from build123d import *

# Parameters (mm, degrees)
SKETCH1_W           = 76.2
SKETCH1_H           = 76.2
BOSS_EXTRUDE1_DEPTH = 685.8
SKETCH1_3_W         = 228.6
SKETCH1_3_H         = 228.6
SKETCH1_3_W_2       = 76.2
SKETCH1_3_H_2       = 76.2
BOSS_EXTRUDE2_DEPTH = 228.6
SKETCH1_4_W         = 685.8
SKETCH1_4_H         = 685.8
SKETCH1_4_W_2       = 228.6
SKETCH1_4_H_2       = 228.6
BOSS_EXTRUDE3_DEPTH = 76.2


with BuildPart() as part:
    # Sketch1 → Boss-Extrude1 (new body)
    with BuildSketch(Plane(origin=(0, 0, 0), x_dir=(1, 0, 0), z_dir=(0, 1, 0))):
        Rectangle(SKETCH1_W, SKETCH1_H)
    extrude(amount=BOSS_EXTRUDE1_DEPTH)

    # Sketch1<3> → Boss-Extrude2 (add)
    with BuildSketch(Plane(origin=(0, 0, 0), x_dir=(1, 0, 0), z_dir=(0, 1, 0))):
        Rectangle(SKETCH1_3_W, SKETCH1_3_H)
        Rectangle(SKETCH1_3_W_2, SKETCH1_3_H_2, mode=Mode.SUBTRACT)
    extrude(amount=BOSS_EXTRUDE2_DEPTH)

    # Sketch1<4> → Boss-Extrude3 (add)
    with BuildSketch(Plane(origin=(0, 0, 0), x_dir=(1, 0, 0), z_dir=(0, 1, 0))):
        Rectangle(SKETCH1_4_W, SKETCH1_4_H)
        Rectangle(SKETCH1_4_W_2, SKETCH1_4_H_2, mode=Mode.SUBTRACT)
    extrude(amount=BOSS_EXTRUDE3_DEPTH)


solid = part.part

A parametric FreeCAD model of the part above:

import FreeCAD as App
import Part
import Sketcher

V = App.Vector
Q = App.Units.Quantity

doc = App.newDocument("Part")
body = doc.addObject("PartDesign::Body", "Body")

# Sketch on XZ plane
sketch1 = body.newObject("Sketcher::SketchObject", "Sketch")
sketch1.AttachmentSupport = (doc.getObject("XZ_Plane"), [""])
sketch1.MapMode = "FlatFace"
sketch1.addGeometry(Part.LineSegment(V(-38, -38, 0), V(-38, 38, 0)), False)
sketch1.addGeometry(Part.LineSegment(V(-38, 38, 0), V(38, 38, 0)), False)
sketch1.addGeometry(Part.LineSegment(V(38, 38, 0), V(38, -38, 0)), False)
sketch1.addGeometry(Part.LineSegment(V(38, -38, 0), V(-38, -38, 0)), False)
sketch1.addConstraint(Sketcher.Constraint("Coincident", 0, 2, 1, 1))
sketch1.addConstraint(Sketcher.Constraint("Coincident", 1, 2, 2, 1))
sketch1.addConstraint(Sketcher.Constraint("Coincident", 2, 2, 3, 1))
sketch1.addConstraint(Sketcher.Constraint("Coincident", 3, 2, 0, 1))
sketch1.addConstraint(Sketcher.Constraint("Vertical", 0))
sketch1.addConstraint(Sketcher.Constraint("Horizontal", 1))
sketch1.addConstraint(Sketcher.Constraint("Vertical", 2))
sketch1.addConstraint(Sketcher.Constraint("Horizontal", 3))
sketch1.addConstraint(Sketcher.Constraint("Symmetric", 0, 2, 2, 2, -1, 1))
sketch1.addConstraint(Sketcher.Constraint("Equal", 3, 0))
sketch1.addConstraint(Sketcher.Constraint("DistanceX", 1, 1, 1, 2, Q("3 in")))
pad1 = body.newObject("PartDesign::Pad", "Pad")
pad1.Profile = sketch1
pad1.Length = Q("27 in")
pad1.Reversed = True

# Sketch on XZ plane
sketch2 = body.newObject("Sketcher::SketchObject", "Sketch001")
sketch2.AttachmentSupport = (doc.getObject("XZ_Plane"), [""])
sketch2.MapMode = "FlatFace"
sketch2.addGeometry(Part.LineSegment(V(-114, -114, 0), V(-114, 114, 0)), False)
sketch2.addGeometry(Part.LineSegment(V(-114, 114, 0), V(114, 114, 0)), False)
sketch2.addGeometry(Part.LineSegment(V(114, 114, 0), V(114, -114, 0)), False)
sketch2.addGeometry(Part.LineSegment(V(114, -114, 0), V(-114, -114, 0)), False)
sketch2.addGeometry(Part.LineSegment(V(38, 38, 0), V(-38, 38, 0)), False)
sketch2.addGeometry(Part.LineSegment(V(-38, 38, 0), V(-38, -38, 0)), False)
sketch2.addGeometry(Part.LineSegment(V(-38, -38, 0), V(38, -38, 0)), False)
sketch2.addGeometry(Part.LineSegment(V(38, -38, 0), V(38, 38, 0)), False)
sketch2.addConstraint(Sketcher.Constraint("Coincident", 0, 2, 1, 1))
sketch2.addConstraint(Sketcher.Constraint("Coincident", 1, 2, 2, 1))
sketch2.addConstraint(Sketcher.Constraint("Coincident", 2, 2, 3, 1))
sketch2.addConstraint(Sketcher.Constraint("Coincident", 3, 2, 0, 1))
sketch2.addConstraint(Sketcher.Constraint("Coincident", 4, 2, 5, 1))
sketch2.addConstraint(Sketcher.Constraint("Coincident", 5, 2, 6, 1))
sketch2.addConstraint(Sketcher.Constraint("Coincident", 6, 2, 7, 1))
sketch2.addConstraint(Sketcher.Constraint("Coincident", 7, 2, 4, 1))
sketch2.addConstraint(Sketcher.Constraint("Vertical", 0))
sketch2.addConstraint(Sketcher.Constraint("Horizontal", 1))
sketch2.addConstraint(Sketcher.Constraint("Vertical", 2))
sketch2.addConstraint(Sketcher.Constraint("Horizontal", 3))
sketch2.addConstraint(Sketcher.Constraint("Horizontal", 4))
sketch2.addConstraint(Sketcher.Constraint("Vertical", 5))
sketch2.addConstraint(Sketcher.Constraint("Horizontal", 6))
sketch2.addConstraint(Sketcher.Constraint("Vertical", 7))
sketch2.addConstraint(Sketcher.Constraint("Symmetric", 0, 2, 2, 2, -1, 1))
sketch2.addConstraint(Sketcher.Constraint("Symmetric", 4, 2, 6, 2, -1, 1))
sketch2.addConstraint(Sketcher.Constraint("Equal", 3, 0))
sketch2.addConstraint(Sketcher.Constraint("Equal", 6, 5))
sketch2.addConstraint(Sketcher.Constraint("DistanceX", 1, 1, 1, 2, Q("9 in")))
sketch2.addConstraint(Sketcher.Constraint("DistanceX", 4, 2, 4, 1, Q("3 in")))
pad2 = body.newObject("PartDesign::Pad", "Pad001")
pad2.Profile = sketch2
pad2.Length = Q("9 in")
pad2.Reversed = True

# Sketch on XZ plane
sketch3 = body.newObject("Sketcher::SketchObject", "Sketch002")
sketch3.AttachmentSupport = (doc.getObject("XZ_Plane"), [""])
sketch3.MapMode = "FlatFace"
sketch3.addGeometry(Part.LineSegment(V(-343, -343, 0), V(-343, 343, 0)), False)
sketch3.addGeometry(Part.LineSegment(V(-343, 343, 0), V(343, 343, 0)), False)
sketch3.addGeometry(Part.LineSegment(V(343, 343, 0), V(343, -343, 0)), False)
sketch3.addGeometry(Part.LineSegment(V(343, -343, 0), V(-343, -343, 0)), False)
sketch3.addGeometry(Part.LineSegment(V(114, 114, 0), V(-114, 114, 0)), False)
sketch3.addGeometry(Part.LineSegment(V(-114, 114, 0), V(-114, -114, 0)), False)
sketch3.addGeometry(Part.LineSegment(V(-114, -114, 0), V(114, -114, 0)), False)
sketch3.addGeometry(Part.LineSegment(V(114, -114, 0), V(114, 114, 0)), False)
sketch3.addConstraint(Sketcher.Constraint("Coincident", 0, 2, 1, 1))
sketch3.addConstraint(Sketcher.Constraint("Coincident", 1, 2, 2, 1))
sketch3.addConstraint(Sketcher.Constraint("Coincident", 2, 2, 3, 1))
sketch3.addConstraint(Sketcher.Constraint("Coincident", 3, 2, 0, 1))
sketch3.addConstraint(Sketcher.Constraint("Coincident", 4, 2, 5, 1))
sketch3.addConstraint(Sketcher.Constraint("Coincident", 5, 2, 6, 1))
sketch3.addConstraint(Sketcher.Constraint("Coincident", 6, 2, 7, 1))
sketch3.addConstraint(Sketcher.Constraint("Coincident", 7, 2, 4, 1))
sketch3.addConstraint(Sketcher.Constraint("Vertical", 0))
sketch3.addConstraint(Sketcher.Constraint("Horizontal", 1))
sketch3.addConstraint(Sketcher.Constraint("Vertical", 2))
sketch3.addConstraint(Sketcher.Constraint("Horizontal", 3))
sketch3.addConstraint(Sketcher.Constraint("Horizontal", 4))
sketch3.addConstraint(Sketcher.Constraint("Vertical", 5))
sketch3.addConstraint(Sketcher.Constraint("Horizontal", 6))
sketch3.addConstraint(Sketcher.Constraint("Vertical", 7))
sketch3.addConstraint(Sketcher.Constraint("Symmetric", 0, 2, 2, 2, -1, 1))
sketch3.addConstraint(Sketcher.Constraint("Symmetric", 4, 2, 6, 2, -1, 1))
sketch3.addConstraint(Sketcher.Constraint("Equal", 3, 0))
sketch3.addConstraint(Sketcher.Constraint("Equal", 6, 5))
sketch3.addConstraint(Sketcher.Constraint("DistanceX", 1, 1, 1, 2, Q("27 in")))
sketch3.addConstraint(Sketcher.Constraint("DistanceX", 4, 2, 4, 1, Q("9 in")))
pad3 = body.newObject("PartDesign::Pad", "Pad002")
pad3.Profile = sketch3
pad3.Length = Q("3 in")
pad3.Reversed = True

doc.recompute()
